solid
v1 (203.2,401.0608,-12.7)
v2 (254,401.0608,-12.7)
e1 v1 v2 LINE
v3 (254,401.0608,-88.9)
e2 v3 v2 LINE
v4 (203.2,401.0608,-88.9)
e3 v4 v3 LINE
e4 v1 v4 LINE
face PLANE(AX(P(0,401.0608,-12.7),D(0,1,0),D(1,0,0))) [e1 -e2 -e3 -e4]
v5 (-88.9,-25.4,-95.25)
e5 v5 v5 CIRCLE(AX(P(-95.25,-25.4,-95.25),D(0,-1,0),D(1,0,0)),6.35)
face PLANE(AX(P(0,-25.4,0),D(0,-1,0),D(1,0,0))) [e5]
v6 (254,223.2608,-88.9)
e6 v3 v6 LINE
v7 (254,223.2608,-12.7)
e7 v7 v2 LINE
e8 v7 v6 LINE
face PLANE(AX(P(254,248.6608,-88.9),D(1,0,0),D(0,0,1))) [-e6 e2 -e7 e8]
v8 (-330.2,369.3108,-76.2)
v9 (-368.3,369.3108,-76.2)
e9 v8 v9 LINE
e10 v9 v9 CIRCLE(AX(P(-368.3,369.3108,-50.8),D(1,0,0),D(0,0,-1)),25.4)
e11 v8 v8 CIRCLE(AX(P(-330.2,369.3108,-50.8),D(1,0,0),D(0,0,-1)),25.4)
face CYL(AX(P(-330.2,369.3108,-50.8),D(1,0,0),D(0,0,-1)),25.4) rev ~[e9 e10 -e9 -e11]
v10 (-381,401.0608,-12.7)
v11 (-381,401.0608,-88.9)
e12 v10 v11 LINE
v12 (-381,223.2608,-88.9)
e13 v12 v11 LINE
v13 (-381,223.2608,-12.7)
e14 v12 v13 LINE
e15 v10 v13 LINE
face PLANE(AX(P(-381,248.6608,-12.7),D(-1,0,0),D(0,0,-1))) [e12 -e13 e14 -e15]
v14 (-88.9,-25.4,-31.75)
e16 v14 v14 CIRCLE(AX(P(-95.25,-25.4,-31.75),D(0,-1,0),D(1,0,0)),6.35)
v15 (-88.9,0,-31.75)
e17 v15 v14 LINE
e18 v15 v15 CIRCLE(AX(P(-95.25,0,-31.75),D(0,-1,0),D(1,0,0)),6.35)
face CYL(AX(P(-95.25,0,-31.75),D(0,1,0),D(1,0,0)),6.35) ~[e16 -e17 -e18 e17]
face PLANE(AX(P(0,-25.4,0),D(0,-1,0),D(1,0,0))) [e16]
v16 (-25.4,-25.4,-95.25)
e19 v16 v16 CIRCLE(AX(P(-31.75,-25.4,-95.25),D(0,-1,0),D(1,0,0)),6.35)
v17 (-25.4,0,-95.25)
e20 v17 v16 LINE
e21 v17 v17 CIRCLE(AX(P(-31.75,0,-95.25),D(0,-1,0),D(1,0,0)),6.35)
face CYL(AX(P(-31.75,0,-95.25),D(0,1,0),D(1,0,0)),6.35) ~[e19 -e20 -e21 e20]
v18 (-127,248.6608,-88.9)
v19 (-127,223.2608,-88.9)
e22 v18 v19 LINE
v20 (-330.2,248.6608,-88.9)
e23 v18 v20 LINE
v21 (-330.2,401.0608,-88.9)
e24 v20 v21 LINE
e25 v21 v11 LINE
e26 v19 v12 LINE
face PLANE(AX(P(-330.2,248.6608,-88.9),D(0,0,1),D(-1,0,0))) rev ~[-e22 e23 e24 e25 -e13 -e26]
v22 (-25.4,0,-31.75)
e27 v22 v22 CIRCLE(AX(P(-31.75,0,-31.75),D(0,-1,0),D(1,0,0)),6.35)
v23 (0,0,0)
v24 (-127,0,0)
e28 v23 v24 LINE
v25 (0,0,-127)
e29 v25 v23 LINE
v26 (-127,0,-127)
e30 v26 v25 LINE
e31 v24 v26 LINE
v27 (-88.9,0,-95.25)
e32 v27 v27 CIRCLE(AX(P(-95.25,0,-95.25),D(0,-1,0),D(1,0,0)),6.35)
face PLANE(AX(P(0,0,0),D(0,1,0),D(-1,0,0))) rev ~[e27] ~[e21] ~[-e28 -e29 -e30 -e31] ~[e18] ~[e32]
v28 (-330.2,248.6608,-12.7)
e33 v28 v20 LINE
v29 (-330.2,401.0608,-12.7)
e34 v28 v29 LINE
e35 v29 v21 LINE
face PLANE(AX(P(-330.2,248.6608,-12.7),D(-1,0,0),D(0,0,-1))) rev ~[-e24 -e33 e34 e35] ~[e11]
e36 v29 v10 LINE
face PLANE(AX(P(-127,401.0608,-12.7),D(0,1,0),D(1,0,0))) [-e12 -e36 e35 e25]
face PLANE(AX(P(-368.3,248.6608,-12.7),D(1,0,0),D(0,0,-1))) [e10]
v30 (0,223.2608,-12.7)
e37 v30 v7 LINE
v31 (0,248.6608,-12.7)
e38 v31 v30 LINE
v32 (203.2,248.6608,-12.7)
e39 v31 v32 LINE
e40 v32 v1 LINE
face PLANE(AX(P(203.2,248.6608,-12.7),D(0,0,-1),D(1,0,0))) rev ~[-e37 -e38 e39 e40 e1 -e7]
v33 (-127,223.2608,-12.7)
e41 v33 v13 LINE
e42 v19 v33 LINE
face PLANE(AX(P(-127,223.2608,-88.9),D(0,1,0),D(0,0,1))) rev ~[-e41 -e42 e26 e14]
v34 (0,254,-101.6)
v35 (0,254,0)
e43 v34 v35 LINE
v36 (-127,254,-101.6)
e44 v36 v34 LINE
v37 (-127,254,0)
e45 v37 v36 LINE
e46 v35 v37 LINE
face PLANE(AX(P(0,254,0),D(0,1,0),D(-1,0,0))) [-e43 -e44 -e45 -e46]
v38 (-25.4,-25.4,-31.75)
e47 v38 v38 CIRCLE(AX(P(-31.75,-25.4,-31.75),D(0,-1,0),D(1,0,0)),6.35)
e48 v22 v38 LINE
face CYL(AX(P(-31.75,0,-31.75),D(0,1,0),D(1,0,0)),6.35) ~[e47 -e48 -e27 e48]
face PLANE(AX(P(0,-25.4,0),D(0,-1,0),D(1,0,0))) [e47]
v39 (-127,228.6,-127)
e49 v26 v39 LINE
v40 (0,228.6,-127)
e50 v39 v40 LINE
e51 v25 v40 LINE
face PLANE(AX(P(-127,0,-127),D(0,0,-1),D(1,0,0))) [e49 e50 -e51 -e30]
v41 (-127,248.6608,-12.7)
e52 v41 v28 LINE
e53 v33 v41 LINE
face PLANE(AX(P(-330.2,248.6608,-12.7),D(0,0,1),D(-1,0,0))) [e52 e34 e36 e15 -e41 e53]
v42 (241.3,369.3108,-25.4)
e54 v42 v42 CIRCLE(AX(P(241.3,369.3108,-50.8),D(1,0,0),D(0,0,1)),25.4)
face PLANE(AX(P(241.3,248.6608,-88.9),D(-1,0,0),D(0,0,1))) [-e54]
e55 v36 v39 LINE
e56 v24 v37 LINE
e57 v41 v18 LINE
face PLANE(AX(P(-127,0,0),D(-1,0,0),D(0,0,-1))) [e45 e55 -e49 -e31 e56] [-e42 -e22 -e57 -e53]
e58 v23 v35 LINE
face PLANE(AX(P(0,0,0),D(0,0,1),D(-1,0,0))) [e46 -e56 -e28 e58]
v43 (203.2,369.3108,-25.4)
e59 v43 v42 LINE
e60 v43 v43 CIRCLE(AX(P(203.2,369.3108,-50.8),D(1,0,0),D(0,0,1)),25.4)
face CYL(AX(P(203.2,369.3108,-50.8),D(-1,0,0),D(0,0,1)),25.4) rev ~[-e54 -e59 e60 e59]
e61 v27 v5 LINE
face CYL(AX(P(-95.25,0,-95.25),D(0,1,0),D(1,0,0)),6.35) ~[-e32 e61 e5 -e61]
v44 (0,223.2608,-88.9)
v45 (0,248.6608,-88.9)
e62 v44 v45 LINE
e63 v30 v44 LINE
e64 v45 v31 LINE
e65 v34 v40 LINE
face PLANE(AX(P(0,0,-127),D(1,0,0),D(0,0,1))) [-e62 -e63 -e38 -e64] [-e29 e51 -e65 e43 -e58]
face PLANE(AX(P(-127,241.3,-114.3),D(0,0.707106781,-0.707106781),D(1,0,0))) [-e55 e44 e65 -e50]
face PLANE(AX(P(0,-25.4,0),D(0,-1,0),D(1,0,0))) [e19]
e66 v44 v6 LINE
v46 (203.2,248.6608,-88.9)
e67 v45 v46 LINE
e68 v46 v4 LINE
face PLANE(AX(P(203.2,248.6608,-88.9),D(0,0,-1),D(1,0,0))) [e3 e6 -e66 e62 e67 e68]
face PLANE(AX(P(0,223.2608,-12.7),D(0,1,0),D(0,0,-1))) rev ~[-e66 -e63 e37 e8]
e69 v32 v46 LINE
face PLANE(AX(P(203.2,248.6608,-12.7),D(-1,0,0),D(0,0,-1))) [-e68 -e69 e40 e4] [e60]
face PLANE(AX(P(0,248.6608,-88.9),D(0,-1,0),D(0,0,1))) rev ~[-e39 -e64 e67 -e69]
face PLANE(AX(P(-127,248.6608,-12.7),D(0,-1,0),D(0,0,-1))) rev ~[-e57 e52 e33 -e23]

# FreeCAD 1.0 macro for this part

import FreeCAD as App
import Part
import Sketcher

V = App.Vector
Q = App.Units.Quantity


def edges_at(feature, points):
    """Names of the edges that pass closest to the given points."""
    edges = feature.Shape.Edges
    near = lambda p: min(range(len(edges)), key=lambda i: edges[i].distToShape(Part.Vertex(*p))[0])
    return sorted({f"Edge{near(p) + 1}" for p in points})


def add_polygon(sketch, points):
    """Adds a closed chain of lines whose ends are joined by coincident constraints."""
    first, n = sketch.GeometryCount, len(points)
    for a, b in zip(points, points[1:] + points[:1]):
        sketch.addGeometry(Part.LineSegment(App.Vector(*a, 0), App.Vector(*b, 0)), False)
    for i in range(n):
        sketch.addConstraint(Sketcher.Constraint("Coincident", first + i, 2, first + (i + 1) % n, 1))

doc = App.newDocument("Part")
body = doc.addObject("PartDesign::Body", "Body")

sketch1 = body.newObject("Sketcher::SketchObject", "Sketch")
sketch1.AttachmentSupport = (doc.getObject("XZ_Plane"), [""])
sketch1.MapMode = "FlatFace"
add_polygon(sketch1, [(-127, 0), (0, 0), (0, -127), (-127, -127)])
sketch1.addConstraint([
    Sketcher.Constraint("Horizontal", 0),
    Sketcher.Constraint("Vertical", 1),
    Sketcher.Constraint("Horizontal", 2),
    Sketcher.Constraint("Vertical", 3),
    Sketcher.Constraint("Coincident", 0, 2, -1, 1),
    Sketcher.Constraint("Equal", 2, 1),
    Sketcher.Constraint("DistanceX", 0, 1, 0, 2, Q("5 in")),
])
pad1 = body.newObject("PartDesign::Pad", "Pad")
pad1.Profile = sketch1
pad1.Length = Q("10 in")
pad1.Reversed = True

sketch2 = body.newObject("Sketcher::SketchObject", "Sketch001")
sketch2.AttachmentSupport = (doc.getObject("XZ_Plane"), [""])
sketch2.MapMode = "FlatFace"
sketch2.addGeometry([
    Part.Circle(V(-32, -32, 0), V(0, 0, 1), 6),
    Part.Circle(V(-95, -32, 0), V(0, 0, 1), 6),
    Part.Circle(V(-95, -95, 0), V(0, 0, 1), 6),
    Part.Circle(V(-32, -95, 0), V(0, 0, 1), 6),
], False)
sketch2.addConstraint([
    Sketcher.Constraint("Equal", 0, 1),
    Sketcher.Constraint("Equal", 1, 2),
    Sketcher.Constraint("Equal", 2, 3),
    Sketcher.Constraint("Horizontal", 0, 3, 1, 3),
    Sketcher.Constraint("Horizontal", 2, 3, 3, 3),
    Sketcher.Constraint("Vertical", 1, 3, 2, 3),
    Sketcher.Constraint("Vertical", 0, 3, 3, 3),
    Sketcher.Constraint("Diameter", 0, Q("0.5 in")),
    Sketcher.Constraint("DistanceX", 1, 3, 0, 3, Q("2.5 in")),
    Sketcher.Constraint("DistanceY", 2, 3, 1, 3, Q("2.5 in")),
    Sketcher.Constraint("DistanceX", 0, 3, -1, 1, Q("1.25 in")),
    Sketcher.Constraint("DistanceY", 0, 3, -1, 1, Q("1.25 in")),
])
pad2 = body.newObject("PartDesign::Pad", "Pad001")
pad2.Profile = sketch2
pad2.Length = Q("1 in")
doc.recompute()

chamfer = body.newObject("PartDesign::Chamfer", "Chamfer")
chamfer.Base = (pad2, edges_at(pad2, [(-63.5, 254, -127)]))
chamfer.Size = Q("1 in")

sketch3 = body.newObject("Sketcher::SketchObject", "Sketch002")
sketch3.AttachmentSupport = (doc.getObject("YZ_Plane"), [""])
sketch3.MapMode = "FlatFace"
add_polygon(sketch3, [(249, -13), (223, -13), (223, -89), (249, -89)])
sketch3.addConstraint([
    Sketcher.Constraint("Horizontal", 0),
    Sketcher.Constraint("Vertical", 1),
    Sketcher.Constraint("Horizontal", 2),
    Sketcher.Constraint("Vertical", 3),
    Sketcher.Constraint("DistanceX", 0, 2, 0, 1, Q("1 in")),
    Sketcher.Constraint("DistanceY", 1, 2, 1, 1, Q("3 in")),
    Sketcher.Constraint("DistanceY", 0, 2, -1, 1, Q("0.5 in")),
    Sketcher.Constraint("DistanceX", -1, 1, 0, 2, Q("8.7898 in")),
])
pad3 = body.newObject("PartDesign::Pad", "Pad002")
pad3.Profile = sketch3
pad3.Length = Q("10 in")

sketch4 = body.newObject("Sketcher::SketchObject", "Sketch003")
sketch4.AttachmentSupport = (doc.getObject("XZ_Plane"), [""])
sketch4.MapMode = "FlatFace"
sketch4.AttachmentOffset = App.Placement(V(0, 0, -9.7897953 * 25.4), App.Rotation())
add_polygon(sketch4, [(203, -89), (203, -13), (254, -13), (254, -89)])
sketch4.addConstraint([
    Sketcher.Constraint("Vertical", 0),
    Sketcher.Constraint("Horizontal", 1),
    Sketcher.Constraint("Vertical", 2),
    Sketcher.Constraint("Horizontal", 3),
    Sketcher.Constraint("DistanceX", 1, 1, 1, 2, Q("2 in")),
    Sketcher.Constraint("DistanceY", 0, 1, 0, 2, Q("3 in")),
    Sketcher.Constraint("DistanceX", -1, 1, 0, 2, Q("8 in")),
    Sketcher.Constraint("DistanceY", 0, 2, -1, 1, Q("0.5 in")),
])
pad4 = body.newObject("PartDesign::Pad", "Pad003")
pad4.Profile = sketch4
pad4.Length = Q("6 in")
pad4.Reversed = True

sketch5 = body.newObject("Sketcher::SketchObject", "Sketch004")
sketch5.AttachmentSupport = (doc.getObject("YZ_Plane"), [""])
sketch5.MapMode = "FlatFace"
sketch5.AttachmentOffset = App.Placement(V(0, 0, 8 * 25.4), App.Rotation())
sketch5.addGeometry(Part.Circle(V(369, -51, 0), V(0, 0, 1), 25), False)
sketch5.addConstraint([
    Sketcher.Constraint("Diameter", 0, Q("2 in")),
    Sketcher.Constraint("DistanceY", 0, 3, -1, 1, Q("2 in")),
    Sketcher.Constraint("DistanceX", -1, 1, 0, 3, Q("14.5398 in")),
])
pocket1 = body.newObject("PartDesign::Pocket", "Pocket")
pocket1.Profile = sketch5
pocket1.Length = Q("1.5 in")
pocket1.Reversed = True

sketch6 = body.newObject("Sketcher::SketchObject", "Sketch005")
sketch6.AttachmentSupport = (doc.getObject("YZ_Plane"), [""])
sketch6.MapMode = "FlatFace"
sketch6.AttachmentOffset = App.Placement(V(0, 0, -5 * 25.4), App.Rotation())
add_polygon(sketch6, [(223, -89), (223, -13), (249, -13), (249, -89)])
sketch6.addConstraint([
    Sketcher.Constraint("Vertical", 0),
    Sketcher.Constraint("Horizontal", 1),
    Sketcher.Constraint("Vertical", 2),
    Sketcher.Constraint("Horizontal", 3),
    Sketcher.Constraint("DistanceX", 1, 1, 1, 2, Q("1 in")),
    Sketcher.Constraint("DistanceY", 0, 1, 0, 2, Q("3 in")),
    Sketcher.Constraint("DistanceY", 0, 2, -1, 1, Q("0.5 in")),
    Sketcher.Constraint("DistanceX", -1, 1, 0, 2, Q("8.7898 in")),
])
pad5 = body.newObject("PartDesign::Pad", "Pad004")
pad5.Profile = sketch6
pad5.Length = Q("10 in")
pad5.Reversed = True

sketch7 = body.newObject("Sketcher::SketchObject", "Sketch006")
sketch7.AttachmentSupport = (doc.getObject("XZ_Plane"), [""])
sketch7.MapMode = "FlatFace"
sketch7.AttachmentOffset = App.Placement(V(0, 0, -9.7897953 * 25.4), App.Rotation())
add_polygon(sketch7, [(-330, -13), (-330, -89), (-381, -89), (-381, -13)])
sketch7.addConstraint([
    Sketcher.Constraint("Vertical", 0),
    Sketcher.Constraint("Horizontal", 1),
    Sketcher.Constraint("Vertical", 2),
    Sketcher.Constraint("Horizontal", 3),
    Sketcher.Constraint("DistanceX", 1, 2, 1, 1, Q("2 in")),
    Sketcher.Constraint("DistanceY", 0, 2, 0, 1, Q("3 in")),
    Sketcher.Constraint("DistanceX", 0, 2, -1, 1, Q("13 in")),
    Sketcher.Constraint("DistanceY", 0, 2, -1, 1, Q("3.5 in")),
])
pad6 = body.newObject("PartDesign::Pad", "Pad005")
pad6.Profile = sketch7
pad6.Length = Q("6 in")
pad6.Reversed = True

sketch8 = body.newObject("Sketcher::SketchObject", "Sketch007")
sketch8.AttachmentSupport = (doc.getObject("YZ_Plane"), [""])
sketch8.MapMode = "FlatFace"
sketch8.AttachmentOffset = App.Placement(V(0, 0, -13 * 25.4), App.Rotation())
sketch8.addGeometry(Part.Circle(V(369, -51, 0), V(0, 0, 1), 25), False)
sketch8.addConstraint([
    Sketcher.Constraint("Diameter", 0, Q("2 in")),
    Sketcher.Constraint("DistanceY", 0, 3, -1, 1, Q("2 in")),
    Sketcher.Constraint("DistanceX", -1, 1, 0, 3, Q("14.5398 in")),
])
pocket2 = body.newObject("PartDesign::Pocket", "Pocket001")
pocket2.Profile = sketch8
pocket2.Length = Q("1.5 in")

doc.recompute()
